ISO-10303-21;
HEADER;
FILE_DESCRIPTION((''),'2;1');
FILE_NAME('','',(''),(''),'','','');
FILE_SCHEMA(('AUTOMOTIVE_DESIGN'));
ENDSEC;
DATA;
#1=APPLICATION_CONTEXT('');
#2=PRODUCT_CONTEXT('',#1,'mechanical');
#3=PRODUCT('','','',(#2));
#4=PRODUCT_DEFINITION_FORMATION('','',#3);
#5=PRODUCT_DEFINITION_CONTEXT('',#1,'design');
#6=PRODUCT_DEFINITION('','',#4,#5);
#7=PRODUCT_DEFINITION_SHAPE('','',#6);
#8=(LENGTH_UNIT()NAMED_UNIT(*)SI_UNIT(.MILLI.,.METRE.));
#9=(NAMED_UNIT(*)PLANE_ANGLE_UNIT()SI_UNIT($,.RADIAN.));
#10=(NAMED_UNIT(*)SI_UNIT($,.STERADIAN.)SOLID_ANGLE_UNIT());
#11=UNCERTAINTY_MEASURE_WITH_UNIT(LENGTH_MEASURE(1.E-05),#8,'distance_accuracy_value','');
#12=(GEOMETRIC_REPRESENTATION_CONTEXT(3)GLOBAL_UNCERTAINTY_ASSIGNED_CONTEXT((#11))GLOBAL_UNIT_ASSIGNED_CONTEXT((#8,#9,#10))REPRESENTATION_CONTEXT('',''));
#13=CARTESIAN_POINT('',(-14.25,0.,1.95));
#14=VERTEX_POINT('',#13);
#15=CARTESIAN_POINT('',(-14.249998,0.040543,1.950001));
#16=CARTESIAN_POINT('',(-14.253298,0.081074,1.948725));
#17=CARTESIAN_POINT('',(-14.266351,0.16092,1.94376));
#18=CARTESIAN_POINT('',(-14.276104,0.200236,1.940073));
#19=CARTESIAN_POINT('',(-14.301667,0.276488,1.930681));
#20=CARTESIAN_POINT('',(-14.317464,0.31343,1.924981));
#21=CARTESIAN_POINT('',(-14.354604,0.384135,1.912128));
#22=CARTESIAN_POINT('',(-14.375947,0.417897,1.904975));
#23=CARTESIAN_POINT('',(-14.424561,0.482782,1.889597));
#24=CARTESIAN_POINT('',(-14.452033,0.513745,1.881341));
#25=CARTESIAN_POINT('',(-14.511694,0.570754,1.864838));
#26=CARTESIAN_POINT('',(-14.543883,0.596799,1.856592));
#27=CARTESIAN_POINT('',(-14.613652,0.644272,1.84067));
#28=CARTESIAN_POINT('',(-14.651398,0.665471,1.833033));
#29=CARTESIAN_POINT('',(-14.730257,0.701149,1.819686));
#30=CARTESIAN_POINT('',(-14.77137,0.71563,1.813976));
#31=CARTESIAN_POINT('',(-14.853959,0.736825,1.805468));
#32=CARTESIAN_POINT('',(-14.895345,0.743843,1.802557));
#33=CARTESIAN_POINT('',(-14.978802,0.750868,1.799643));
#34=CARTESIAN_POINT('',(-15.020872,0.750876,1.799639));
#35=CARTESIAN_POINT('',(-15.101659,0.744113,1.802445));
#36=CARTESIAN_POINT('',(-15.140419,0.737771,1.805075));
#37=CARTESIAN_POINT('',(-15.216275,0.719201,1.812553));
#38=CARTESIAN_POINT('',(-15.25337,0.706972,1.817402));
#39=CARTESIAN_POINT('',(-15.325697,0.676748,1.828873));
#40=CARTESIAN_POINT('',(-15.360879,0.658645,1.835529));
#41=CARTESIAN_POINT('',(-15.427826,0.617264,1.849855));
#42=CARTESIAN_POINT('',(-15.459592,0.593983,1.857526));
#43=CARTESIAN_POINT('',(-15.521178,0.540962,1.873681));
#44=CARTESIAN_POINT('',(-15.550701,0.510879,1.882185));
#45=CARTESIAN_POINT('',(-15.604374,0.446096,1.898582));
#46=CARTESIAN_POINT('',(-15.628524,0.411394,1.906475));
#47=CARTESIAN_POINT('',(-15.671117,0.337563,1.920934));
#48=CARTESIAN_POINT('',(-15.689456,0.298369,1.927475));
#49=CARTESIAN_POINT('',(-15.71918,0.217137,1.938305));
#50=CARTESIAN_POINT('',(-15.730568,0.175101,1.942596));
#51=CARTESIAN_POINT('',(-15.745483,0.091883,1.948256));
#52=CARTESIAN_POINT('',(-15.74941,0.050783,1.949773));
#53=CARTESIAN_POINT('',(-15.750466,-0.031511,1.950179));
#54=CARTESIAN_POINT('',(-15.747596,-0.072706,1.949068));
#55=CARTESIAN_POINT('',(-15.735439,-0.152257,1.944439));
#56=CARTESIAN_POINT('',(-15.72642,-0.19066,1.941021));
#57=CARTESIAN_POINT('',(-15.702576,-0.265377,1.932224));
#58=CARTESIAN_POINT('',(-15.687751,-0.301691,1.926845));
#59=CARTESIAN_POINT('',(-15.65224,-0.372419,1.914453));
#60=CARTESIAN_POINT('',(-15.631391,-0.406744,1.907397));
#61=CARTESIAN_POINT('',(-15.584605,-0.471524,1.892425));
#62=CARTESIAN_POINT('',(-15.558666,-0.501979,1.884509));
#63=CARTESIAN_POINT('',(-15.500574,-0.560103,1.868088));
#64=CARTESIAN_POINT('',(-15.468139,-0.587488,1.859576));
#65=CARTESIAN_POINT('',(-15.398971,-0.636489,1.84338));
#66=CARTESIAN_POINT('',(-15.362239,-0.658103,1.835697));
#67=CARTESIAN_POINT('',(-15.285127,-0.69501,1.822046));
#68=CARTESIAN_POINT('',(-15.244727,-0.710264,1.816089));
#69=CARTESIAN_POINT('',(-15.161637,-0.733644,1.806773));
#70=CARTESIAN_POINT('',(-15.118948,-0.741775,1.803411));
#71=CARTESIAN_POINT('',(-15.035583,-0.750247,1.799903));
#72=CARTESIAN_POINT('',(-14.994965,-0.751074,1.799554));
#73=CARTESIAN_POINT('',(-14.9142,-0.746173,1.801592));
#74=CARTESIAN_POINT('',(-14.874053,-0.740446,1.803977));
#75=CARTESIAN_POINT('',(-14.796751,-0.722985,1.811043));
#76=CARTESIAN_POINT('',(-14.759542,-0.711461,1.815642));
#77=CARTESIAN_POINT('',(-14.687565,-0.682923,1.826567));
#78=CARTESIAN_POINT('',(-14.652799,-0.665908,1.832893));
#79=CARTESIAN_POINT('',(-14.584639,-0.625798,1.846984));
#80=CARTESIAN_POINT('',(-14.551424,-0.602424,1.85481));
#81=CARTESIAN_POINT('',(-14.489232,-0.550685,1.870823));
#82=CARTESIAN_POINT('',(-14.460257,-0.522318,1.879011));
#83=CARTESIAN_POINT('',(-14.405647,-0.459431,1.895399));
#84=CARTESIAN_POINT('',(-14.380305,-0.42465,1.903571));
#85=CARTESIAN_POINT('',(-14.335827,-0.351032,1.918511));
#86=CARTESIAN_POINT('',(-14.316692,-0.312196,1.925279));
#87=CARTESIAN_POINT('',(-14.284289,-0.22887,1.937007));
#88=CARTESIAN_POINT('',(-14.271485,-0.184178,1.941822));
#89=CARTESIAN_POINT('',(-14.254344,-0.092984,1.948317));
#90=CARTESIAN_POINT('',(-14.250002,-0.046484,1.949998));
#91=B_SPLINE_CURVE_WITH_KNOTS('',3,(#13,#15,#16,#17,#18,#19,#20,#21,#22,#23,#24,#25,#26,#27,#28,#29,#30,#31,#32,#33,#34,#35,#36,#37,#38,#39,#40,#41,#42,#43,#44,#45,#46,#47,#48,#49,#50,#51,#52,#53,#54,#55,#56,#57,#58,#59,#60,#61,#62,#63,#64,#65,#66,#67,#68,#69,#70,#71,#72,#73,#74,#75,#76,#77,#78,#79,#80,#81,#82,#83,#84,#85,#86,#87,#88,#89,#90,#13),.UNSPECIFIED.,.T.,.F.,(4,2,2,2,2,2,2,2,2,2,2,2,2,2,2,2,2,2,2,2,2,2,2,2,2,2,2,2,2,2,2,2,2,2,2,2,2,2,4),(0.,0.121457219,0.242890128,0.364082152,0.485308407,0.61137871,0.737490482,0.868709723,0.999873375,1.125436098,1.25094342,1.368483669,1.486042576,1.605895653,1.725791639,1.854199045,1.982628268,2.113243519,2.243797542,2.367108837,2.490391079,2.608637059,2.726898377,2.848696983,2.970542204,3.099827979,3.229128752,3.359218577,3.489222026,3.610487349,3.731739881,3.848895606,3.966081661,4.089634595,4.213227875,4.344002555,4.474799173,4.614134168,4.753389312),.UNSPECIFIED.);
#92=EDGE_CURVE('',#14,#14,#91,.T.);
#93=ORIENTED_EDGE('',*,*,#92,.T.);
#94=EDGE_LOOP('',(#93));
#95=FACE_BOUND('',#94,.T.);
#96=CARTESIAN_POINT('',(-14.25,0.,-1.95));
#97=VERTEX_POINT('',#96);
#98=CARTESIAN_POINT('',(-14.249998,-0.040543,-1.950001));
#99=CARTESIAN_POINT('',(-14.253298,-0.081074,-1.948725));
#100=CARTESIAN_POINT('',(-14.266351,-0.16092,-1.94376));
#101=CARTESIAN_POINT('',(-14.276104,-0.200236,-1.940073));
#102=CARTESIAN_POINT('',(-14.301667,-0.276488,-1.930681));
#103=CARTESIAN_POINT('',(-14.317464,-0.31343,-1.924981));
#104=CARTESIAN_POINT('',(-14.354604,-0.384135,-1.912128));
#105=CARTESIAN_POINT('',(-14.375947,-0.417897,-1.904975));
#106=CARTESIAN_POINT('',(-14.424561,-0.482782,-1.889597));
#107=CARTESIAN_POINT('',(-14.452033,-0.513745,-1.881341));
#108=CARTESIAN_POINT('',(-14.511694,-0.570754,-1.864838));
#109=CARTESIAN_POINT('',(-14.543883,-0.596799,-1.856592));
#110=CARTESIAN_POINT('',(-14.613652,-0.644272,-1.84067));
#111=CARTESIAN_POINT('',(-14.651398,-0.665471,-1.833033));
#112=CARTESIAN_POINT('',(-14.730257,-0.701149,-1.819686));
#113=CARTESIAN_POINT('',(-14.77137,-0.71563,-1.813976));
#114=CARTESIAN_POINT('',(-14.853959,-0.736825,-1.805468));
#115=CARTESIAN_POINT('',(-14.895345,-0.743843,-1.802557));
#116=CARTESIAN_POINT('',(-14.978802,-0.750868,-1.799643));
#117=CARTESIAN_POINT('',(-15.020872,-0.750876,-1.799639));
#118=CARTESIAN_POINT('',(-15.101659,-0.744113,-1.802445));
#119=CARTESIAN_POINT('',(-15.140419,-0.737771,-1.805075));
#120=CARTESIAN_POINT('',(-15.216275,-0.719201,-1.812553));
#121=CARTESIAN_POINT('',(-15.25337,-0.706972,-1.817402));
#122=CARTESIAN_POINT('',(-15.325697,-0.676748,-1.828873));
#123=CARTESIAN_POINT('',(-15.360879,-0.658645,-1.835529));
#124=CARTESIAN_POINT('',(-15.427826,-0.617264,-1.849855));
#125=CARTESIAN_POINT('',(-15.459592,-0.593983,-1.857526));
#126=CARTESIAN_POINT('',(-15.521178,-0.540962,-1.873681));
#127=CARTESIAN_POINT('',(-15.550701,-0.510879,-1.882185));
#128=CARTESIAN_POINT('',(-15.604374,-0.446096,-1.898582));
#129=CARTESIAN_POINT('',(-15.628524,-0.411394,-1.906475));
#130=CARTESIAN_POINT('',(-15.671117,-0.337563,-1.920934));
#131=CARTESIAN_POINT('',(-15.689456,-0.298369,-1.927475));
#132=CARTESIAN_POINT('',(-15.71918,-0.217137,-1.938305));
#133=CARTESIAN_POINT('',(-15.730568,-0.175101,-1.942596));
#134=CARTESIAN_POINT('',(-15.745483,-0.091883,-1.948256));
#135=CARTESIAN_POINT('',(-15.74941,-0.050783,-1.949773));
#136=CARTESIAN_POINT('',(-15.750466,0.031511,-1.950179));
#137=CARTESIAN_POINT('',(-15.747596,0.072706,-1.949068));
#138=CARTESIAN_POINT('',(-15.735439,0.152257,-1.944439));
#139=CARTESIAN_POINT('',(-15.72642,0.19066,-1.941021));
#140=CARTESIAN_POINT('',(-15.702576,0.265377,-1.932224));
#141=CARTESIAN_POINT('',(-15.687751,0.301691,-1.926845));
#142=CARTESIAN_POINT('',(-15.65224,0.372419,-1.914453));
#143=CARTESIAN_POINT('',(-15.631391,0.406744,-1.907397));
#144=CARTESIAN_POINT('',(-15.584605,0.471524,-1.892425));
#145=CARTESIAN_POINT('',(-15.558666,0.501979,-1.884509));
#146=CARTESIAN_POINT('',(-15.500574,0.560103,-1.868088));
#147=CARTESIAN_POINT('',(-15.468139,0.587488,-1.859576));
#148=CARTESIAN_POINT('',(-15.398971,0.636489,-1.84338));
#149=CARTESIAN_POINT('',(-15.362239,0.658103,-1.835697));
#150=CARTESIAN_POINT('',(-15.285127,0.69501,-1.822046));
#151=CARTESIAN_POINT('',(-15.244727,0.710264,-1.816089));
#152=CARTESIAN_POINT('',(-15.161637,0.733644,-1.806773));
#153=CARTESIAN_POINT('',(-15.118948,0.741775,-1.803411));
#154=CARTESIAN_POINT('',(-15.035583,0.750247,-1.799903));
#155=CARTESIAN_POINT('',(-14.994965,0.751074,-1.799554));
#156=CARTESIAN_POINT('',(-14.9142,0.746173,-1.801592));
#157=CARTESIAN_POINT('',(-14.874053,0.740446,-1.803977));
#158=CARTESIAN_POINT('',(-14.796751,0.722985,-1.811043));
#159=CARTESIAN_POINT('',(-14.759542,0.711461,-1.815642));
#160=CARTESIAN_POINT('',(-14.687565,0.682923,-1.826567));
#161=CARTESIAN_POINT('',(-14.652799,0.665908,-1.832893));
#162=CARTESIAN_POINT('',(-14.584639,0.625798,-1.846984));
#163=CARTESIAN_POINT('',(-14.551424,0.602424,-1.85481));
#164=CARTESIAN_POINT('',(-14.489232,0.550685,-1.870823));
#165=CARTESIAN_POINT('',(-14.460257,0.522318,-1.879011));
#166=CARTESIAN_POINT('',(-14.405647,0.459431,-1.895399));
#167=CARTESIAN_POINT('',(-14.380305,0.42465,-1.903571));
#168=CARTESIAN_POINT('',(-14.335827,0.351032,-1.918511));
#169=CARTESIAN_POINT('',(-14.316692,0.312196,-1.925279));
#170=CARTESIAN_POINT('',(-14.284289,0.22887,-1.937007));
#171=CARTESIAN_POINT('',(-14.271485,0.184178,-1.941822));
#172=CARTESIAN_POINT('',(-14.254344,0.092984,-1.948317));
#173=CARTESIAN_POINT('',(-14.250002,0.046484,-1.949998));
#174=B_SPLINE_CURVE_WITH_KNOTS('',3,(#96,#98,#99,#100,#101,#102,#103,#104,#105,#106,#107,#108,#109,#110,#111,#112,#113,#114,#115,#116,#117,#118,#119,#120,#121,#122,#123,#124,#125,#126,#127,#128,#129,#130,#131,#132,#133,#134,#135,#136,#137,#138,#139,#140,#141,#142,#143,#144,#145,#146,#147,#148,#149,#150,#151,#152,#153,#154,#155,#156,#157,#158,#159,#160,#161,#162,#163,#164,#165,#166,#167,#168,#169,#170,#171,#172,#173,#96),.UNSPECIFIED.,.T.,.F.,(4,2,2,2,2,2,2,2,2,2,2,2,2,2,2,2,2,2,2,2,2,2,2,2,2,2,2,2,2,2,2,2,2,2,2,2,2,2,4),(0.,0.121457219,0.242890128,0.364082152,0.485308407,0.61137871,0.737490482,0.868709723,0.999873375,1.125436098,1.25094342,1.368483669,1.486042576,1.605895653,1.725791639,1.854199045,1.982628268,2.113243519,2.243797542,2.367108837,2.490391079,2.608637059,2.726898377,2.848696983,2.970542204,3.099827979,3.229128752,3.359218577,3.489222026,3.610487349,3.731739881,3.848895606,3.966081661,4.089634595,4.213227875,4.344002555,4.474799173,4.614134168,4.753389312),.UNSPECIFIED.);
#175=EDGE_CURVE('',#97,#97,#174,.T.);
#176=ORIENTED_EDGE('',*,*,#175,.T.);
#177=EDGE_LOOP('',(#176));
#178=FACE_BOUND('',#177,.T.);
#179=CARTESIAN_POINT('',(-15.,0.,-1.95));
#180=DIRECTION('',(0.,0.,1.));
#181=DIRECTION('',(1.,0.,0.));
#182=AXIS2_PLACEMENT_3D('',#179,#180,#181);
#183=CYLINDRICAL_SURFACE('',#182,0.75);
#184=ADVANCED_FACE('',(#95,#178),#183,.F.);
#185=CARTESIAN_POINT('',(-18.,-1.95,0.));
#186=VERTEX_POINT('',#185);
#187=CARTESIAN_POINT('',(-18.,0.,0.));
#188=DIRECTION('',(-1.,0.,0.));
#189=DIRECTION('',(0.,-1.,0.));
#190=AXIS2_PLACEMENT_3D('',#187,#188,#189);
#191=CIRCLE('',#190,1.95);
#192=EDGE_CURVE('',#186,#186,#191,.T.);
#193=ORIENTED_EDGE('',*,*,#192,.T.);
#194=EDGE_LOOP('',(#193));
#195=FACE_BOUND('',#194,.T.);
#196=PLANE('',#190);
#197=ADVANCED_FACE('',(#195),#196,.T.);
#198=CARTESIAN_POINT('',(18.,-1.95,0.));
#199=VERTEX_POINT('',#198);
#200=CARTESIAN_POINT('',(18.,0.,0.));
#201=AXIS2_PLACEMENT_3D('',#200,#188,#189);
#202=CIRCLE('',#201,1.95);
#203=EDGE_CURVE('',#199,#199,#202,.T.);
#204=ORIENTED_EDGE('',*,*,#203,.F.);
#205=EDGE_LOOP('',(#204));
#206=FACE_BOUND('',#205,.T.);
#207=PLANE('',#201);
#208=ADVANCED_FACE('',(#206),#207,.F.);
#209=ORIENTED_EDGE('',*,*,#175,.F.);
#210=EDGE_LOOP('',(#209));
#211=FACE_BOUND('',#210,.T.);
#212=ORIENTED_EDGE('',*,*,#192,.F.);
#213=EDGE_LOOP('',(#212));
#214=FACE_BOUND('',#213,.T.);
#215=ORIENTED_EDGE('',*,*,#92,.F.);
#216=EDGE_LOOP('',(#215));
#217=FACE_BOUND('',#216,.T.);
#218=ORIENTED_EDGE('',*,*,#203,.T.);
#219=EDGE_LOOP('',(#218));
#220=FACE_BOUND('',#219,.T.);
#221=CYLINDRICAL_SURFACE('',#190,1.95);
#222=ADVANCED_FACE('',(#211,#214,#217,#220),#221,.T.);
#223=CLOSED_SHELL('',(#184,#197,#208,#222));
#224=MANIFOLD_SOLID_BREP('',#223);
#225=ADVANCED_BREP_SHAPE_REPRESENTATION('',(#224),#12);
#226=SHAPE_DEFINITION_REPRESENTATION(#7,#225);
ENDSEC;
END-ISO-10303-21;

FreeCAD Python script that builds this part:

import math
import FreeCAD as App
import Part
import Sketcher

V = App.Vector

doc = App.newDocument("Part")
body = doc.addObject("PartDesign::Body", "Body")

# Sketch on XY plane
sketch1 = body.newObject("Sketcher::SketchObject", "Sketch")
sketch1.AttachmentSupport = (doc.getObject("XY_Plane"), [""])
sketch1.MapMode = "FlatFace"
sketch1.addGeometry([
    Part.LineSegment(V(18, 0, 0), V(-14.25, 0, 0)),  # 0
    Part.ArcOfCircle(Part.Circle(V(-15, 0, 0), V(0, 0, 1), 0.75), math.radians(180), math.radians(360)),  # 1
    Part.LineSegment(V(-15.75, 0, 0), V(-18, 0, 0)),  # 2
    Part.LineSegment(V(-18, 0, 0), V(-18, -1.95, 0)),  # 3
    Part.LineSegment(V(-18, -1.95, 0), V(18, -1.95, 0)),  # 4
    Part.LineSegment(V(18, -1.95, 0), V(18, 0, 0)),  # 5
], False)
sketch1.addConstraint([
    Sketcher.Constraint("Coincident", 0, 2, 1, 2),
    Sketcher.Constraint("Coincident", 1, 1, 2, 1),
    Sketcher.Constraint("Coincident", 2, 2, 3, 1),
    Sketcher.Constraint("Coincident", 3, 2, 4, 1),
    Sketcher.Constraint("Coincident", 4, 2, 5, 1),
    Sketcher.Constraint("Coincident", 5, 2, 0, 1),
    Sketcher.Constraint("Horizontal", 0),
    Sketcher.Constraint("Horizontal", 2),
    Sketcher.Constraint("Vertical", 3),
    Sketcher.Constraint("Horizontal", 4),
    Sketcher.Constraint("Vertical", 5),
    Sketcher.Constraint("Symmetric", 2, 2, 5, 2, -1, 1),
    Sketcher.Constraint("PointOnObject", 1, 3, -1),
    Sketcher.Constraint("PointOnObject", 0, 2, -1),
    Sketcher.Constraint("DistanceX", 4, 1, 4, 2, 36.0),
    Sketcher.Constraint("Radius", 1, 0.75),
    Sketcher.Constraint("DistanceX", 1, 3, -1, 1, 15.0),
    Sketcher.Constraint("DistanceY", 3, 2, 3, 1, 1.95),
])
revolution = body.newObject("PartDesign::Revolution", "Revolution")
revolution.Profile = sketch1
revolution.ReferenceAxis = (sketch1, ["H_Axis"])
revolution.Angle = 360

# Sketch on XY plane
sketch2 = body.newObject("Sketcher::SketchObject", "Sketch001")
sketch2.AttachmentSupport = (doc.getObject("XY_Plane"), [""])
sketch2.MapMode = "FlatFace"
sketch2.addGeometry(Part.Circle(V(-15, 0, 0), V(0, 0, 1), 0.75), False)
sketch2.addConstraint([
    Sketcher.Constraint("PointOnObject", 0, 3, -1),
    Sketcher.Constraint("Diameter", 0, 1.5),
    Sketcher.Constraint("DistanceX", 0, 3, -1, 1, 15.0),
])
pocket1 = body.newObject("PartDesign::Pocket", "Pocket")
pocket1.Profile = sketch2
pocket1.Type = "ThroughAll"
pocket1.Midplane = True

doc.recompute()
